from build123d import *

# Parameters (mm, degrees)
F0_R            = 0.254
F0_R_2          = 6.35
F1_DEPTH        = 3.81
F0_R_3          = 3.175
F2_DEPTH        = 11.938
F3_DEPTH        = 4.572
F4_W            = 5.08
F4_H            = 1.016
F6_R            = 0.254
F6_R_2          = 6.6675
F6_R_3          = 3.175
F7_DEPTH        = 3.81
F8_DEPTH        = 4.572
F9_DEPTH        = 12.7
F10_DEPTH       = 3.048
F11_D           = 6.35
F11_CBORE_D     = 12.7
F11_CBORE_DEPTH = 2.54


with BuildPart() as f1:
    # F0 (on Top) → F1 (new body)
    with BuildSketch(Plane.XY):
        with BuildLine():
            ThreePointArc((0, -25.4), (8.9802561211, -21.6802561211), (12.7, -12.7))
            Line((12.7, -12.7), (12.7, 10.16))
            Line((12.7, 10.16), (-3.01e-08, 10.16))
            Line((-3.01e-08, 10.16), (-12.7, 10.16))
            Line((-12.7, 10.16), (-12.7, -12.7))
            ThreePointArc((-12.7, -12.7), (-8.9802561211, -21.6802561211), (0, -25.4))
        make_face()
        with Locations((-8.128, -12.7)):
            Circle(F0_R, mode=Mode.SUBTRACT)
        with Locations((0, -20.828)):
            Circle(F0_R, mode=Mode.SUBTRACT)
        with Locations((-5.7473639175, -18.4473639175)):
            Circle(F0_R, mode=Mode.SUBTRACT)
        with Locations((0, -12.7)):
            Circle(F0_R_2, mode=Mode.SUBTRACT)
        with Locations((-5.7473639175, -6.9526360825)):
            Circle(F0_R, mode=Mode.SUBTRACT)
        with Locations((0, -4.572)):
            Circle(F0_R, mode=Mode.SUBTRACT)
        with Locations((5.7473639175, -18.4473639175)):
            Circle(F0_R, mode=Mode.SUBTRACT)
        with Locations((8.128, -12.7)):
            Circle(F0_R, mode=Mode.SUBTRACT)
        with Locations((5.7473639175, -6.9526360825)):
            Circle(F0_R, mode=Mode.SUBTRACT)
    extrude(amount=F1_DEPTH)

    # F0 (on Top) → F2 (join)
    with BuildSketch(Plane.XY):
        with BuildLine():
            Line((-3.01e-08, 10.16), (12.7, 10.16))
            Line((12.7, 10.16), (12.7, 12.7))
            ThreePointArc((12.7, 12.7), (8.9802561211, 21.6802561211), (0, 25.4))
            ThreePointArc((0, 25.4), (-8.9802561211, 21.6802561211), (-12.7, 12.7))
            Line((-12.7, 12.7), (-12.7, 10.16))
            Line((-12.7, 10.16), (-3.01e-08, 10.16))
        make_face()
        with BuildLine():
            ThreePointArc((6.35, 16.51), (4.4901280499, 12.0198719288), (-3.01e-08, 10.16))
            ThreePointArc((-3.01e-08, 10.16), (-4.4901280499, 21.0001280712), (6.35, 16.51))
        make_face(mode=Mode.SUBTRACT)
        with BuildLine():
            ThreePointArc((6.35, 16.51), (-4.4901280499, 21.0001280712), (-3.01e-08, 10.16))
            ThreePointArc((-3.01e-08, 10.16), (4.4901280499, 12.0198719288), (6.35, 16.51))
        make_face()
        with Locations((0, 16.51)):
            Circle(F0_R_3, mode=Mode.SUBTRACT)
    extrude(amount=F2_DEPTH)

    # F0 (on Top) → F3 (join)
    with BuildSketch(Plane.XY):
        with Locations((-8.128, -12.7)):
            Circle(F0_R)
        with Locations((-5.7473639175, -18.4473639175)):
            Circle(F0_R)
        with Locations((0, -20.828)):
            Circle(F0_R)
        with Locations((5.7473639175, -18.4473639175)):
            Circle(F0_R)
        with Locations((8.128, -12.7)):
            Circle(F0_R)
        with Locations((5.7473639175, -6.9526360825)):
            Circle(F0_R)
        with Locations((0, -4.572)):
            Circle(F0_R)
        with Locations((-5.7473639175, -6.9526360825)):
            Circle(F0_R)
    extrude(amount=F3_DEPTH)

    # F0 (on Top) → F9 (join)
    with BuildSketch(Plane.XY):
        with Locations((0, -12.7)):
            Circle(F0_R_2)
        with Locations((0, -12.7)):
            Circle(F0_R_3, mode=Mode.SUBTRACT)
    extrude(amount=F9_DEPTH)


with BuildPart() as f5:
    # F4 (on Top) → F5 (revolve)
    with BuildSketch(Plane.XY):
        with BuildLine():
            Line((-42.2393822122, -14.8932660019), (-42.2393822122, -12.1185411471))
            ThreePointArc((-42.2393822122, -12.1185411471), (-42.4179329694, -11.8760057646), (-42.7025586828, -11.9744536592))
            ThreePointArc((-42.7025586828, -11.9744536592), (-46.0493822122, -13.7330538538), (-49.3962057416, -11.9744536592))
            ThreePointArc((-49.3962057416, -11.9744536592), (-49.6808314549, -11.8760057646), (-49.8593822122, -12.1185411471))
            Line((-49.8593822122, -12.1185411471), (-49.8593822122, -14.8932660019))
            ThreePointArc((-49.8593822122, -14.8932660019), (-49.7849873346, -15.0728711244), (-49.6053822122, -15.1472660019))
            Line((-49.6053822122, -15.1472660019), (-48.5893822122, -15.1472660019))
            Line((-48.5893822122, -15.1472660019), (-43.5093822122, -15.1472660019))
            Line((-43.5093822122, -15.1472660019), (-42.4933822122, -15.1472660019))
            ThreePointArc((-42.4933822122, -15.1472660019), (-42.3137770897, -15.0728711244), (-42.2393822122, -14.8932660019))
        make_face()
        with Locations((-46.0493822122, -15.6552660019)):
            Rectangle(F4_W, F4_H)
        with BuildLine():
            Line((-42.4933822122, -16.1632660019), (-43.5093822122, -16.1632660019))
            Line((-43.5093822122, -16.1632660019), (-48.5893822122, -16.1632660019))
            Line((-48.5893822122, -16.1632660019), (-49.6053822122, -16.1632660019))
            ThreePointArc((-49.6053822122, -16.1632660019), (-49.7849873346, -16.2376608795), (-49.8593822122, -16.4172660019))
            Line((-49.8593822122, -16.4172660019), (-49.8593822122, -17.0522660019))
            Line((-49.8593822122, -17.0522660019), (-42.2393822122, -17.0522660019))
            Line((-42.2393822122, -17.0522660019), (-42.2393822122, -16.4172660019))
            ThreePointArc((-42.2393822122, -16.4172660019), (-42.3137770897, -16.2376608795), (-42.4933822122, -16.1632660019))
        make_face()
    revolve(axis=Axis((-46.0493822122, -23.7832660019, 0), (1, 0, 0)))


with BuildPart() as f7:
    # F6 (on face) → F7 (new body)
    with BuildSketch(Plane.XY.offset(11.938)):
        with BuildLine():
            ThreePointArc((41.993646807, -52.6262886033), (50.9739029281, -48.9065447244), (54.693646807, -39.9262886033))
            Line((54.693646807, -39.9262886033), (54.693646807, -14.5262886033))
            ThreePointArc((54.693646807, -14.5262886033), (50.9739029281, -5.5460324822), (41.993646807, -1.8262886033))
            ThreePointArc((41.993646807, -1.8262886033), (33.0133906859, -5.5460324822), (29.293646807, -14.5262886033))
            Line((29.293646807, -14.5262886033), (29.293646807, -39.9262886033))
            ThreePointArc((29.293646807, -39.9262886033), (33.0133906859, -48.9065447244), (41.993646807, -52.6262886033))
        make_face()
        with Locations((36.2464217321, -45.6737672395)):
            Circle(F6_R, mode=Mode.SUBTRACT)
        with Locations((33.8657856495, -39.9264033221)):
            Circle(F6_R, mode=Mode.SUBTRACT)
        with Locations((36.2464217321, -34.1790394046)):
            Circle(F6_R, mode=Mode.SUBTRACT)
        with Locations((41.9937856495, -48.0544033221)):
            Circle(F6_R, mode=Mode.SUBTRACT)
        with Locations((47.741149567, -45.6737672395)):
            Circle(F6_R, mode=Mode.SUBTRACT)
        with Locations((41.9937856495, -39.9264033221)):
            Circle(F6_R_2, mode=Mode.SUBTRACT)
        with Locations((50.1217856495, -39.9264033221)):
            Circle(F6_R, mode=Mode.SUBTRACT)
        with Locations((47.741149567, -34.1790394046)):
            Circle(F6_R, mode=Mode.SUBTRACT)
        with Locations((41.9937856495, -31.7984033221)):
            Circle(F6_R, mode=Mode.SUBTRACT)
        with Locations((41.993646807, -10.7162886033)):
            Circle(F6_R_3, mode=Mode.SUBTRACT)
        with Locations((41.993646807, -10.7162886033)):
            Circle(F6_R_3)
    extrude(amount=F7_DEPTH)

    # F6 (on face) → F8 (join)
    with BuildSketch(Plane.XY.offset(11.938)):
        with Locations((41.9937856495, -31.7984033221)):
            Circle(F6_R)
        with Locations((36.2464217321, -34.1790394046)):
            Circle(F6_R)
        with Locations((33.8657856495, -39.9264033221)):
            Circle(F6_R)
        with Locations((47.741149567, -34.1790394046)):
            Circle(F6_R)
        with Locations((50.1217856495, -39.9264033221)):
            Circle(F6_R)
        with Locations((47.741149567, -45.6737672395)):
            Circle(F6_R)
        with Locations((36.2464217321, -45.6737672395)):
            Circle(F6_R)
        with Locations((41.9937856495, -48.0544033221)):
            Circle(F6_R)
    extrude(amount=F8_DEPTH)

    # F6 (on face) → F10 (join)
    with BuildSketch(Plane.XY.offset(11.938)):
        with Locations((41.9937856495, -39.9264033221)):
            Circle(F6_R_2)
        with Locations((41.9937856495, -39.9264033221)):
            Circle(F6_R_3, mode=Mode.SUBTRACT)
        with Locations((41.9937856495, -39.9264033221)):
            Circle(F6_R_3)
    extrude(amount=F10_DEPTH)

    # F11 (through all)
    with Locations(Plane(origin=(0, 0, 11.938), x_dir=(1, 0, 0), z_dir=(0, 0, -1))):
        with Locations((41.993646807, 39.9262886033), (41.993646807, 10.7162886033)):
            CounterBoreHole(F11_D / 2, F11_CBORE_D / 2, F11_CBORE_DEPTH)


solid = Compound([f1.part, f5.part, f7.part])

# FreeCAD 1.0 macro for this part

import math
import FreeCAD as App
import Part
import Sketcher
from FreeCAD import Vector
Q = App.Units.Quantity

doc = App.newDocument("Part")
params = doc.addObject("Spreadsheet::Sheet", "Params")
for row, (alias, value) in enumerate([
    ("sketch1_diameter", "0.5 in"),
    ("sketch1_radius", "0.5 in"),
    ("sketch1_diameter2", "0.02 in"),
    ("sketch1_height", "0.9 in"),
    ("pad1_length", "0.15 in"),
    ("sketch2_radius", "0.5 in"),
    ("sketch2_diameter", "0.25 in"),
    ("sketch2_height", "0.1 in"),
    ("pad2_length", "0.47 in"),
    ("sketch3_diameter", "0.02 in"),
    ("pad3_length", "0.18 in"),
    ("sketch4_diameter", "0.5 in"),
    ("sketch4_diameter2", "0.25 in"),
    ("pad4_length", "0.5 in"),
    ("sketch5_radius", "0.01 in"),
    ("sketch5_radius2", "0.16 in"),
    ("sketch5_width", "0.3 in"),
    ("sketch5_width2", "0.04 in"),
    ("sketch5_height", "0.025 in"),
    ("revolution_angle", "360 deg"),
    ("sketch6_radius", "0.5 in"),
    ("sketch6_diameter", "0.02 in"),
    ("sketch6_height", "1 in"),
    ("sketch6_diameter2", "0.525 in"),
    ("pad5_length", "0.15 in"),
    ("sketch7_diameter", "0.02 in"),
    ("pad6_length", "0.18 in"),
    ("sketch8_diameter", "0.525 in"),
    ("pad7_length", "0.12 in"),
    ("sketch9_diameter", "0.25 in"),
    ("hole_diameter", "0.25 in"),
    ("hole_cbore_diameter", "0.5 in"),
    ("hole_cbore_depth", "0.1 in"),
], start=1):
    params.set(f"A{row}", alias)
    params.set(f"B{row}", "=" + value)
    params.setAlias(f"B{row}", alias)

body = doc.addObject("PartDesign::Body", "Body")

# Sketch on XY plane
sketch1 = body.newObject("Sketcher::SketchObject", "Sketch")
sketch1.AttachmentSupport = (doc.getObject("XY_Plane"), [""])
sketch1.MapMode = "FlatFace"
sketch1.addGeometry([
    Part.ArcOfCircle(Part.Circle(Vector(0, -12.7, 0), Vector(0, 0, 1), 12.7), math.radians(-90), math.radians(0)),  # 0
    Part.LineSegment(Vector(12.7, -12.7, 0), Vector(12.7, 10.16, 0)),  # 1
    Part.LineSegment(Vector(12.7, 10.16, 0), Vector(-12.7, 10.16, 0)),  # 2
    Part.LineSegment(Vector(-12.7, 10.16, 0), Vector(-12.7, -12.7, 0)),  # 3
    Part.ArcOfCircle(Part.Circle(Vector(0, -12.7, 0), Vector(0, 0, 1), 12.7), math.radians(180), math.radians(270)),  # 4
    Part.Circle(Vector(-5.75, -18.45, 0), Vector(0, 0, 1), 0.25),  # 5
    Part.Circle(Vector(0, -20.83, 0), Vector(0, 0, 1), 0.25),  # 6
    Part.Circle(Vector(5.75, -18.45, 0), Vector(0, 0, 1), 0.25),  # 7
    Part.Circle(Vector(-8.13, -12.7, 0), Vector(0, 0, 1), 0.25),  # 8
    Part.Circle(Vector(-5.75, -6.95, 0), Vector(0, 0, 1), 0.25),  # 9
    Part.Circle(Vector(0, -12.7, 0), Vector(0, 0, 1), 6.35),  # 10
    Part.Circle(Vector(8.13, -12.7, 0), Vector(0, 0, 1), 0.25),  # 11
    Part.Circle(Vector(0, -4.57, 0), Vector(0, 0, 1), 0.25),  # 12
    Part.Circle(Vector(5.75, -6.95, 0), Vector(0, 0, 1), 0.25),  # 13
], False)
sketch1.addConstraint([
    Sketcher.Constraint("Tangent", 0, 2, 1, 1),
    Sketcher.Constraint("Coincident", 1, 2, 2, 1),
    Sketcher.Constraint("Coincident", 2, 2, 3, 1),
    Sketcher.Constraint("Tangent", 3, 2, 4, 1),
    Sketcher.Constraint("Tangent", 4, 2, 0, 1),
    Sketcher.Constraint("Vertical", 1),
    Sketcher.Constraint("Horizontal", 2),
    Sketcher.Constraint("Vertical", 3),
    Sketcher.Constraint("Coincident", 10, 3, 0, 3),
    Sketcher.Constraint("Equal", 0, 4),
    Sketcher.Constraint("Equal", 5, 6),
    Sketcher.Constraint("Equal", 6, 7),
    Sketcher.Constraint("Equal", 7, 8),
    Sketcher.Constraint("Equal", 8, 9),
    Sketcher.Constraint("Equal", 9, 11),
    Sketcher.Constraint("Equal", 11, 12),
    Sketcher.Constraint("Equal", 12, 13),
    Sketcher.Constraint("Symmetric", 5, 3, 7, 3, -2),
    Sketcher.Constraint("Symmetric", 8, 3, 11, 3, -2),
    Sketcher.Constraint("Symmetric", 9, 3, 13, 3, -2),
    Sketcher.Constraint("PointOnObject", 0, 3, -2),
    Sketcher.Constraint("PointOnObject", 6, 3, -2),
    Sketcher.Constraint("PointOnObject", 12, 3, -2),
    Sketcher.Constraint("PointOnObject", 4, 2, -2),
    Sketcher.Constraint("Horizontal", 4, 3, 8, 3),
    Sketcher.Constraint("Vertical", 5, 3, 9, 3),
    Sketcher.Constraint("Diameter", 10, Q("0.5 in")),
    Sketcher.Constraint("Radius", 0, Q("0.5 in")),
    Sketcher.Constraint("Diameter", 5, Q("0.02 in")),
    Sketcher.Constraint("DistanceY", 1, 1, 1, 2, Q("0.9 in")),
    Sketcher.Constraint("DistanceY", 4, 2, -1, 1, Q("1 in")),
    Sketcher.Constraint("DistanceY", 6, 3, -1, 1, Q("0.82 in")),
    Sketcher.Constraint("DistanceX", 8, 3, -1, 1, Q("0.32 in")),
    Sketcher.Constraint("DistanceY", 12, 3, -1, 1, Q("0.18 in")),
    Sketcher.Constraint("DistanceX", 5, 3, -1, 1, Q("5.747364 mm")),
    Sketcher.Constraint("DistanceY", 5, 3, -1, 1, Q("18.447364 mm")),
    Sketcher.Constraint("DistanceY", 9, 3, -1, 1, Q("6.952636 mm")),
])
sketch1.setExpression("Constraints[26]", "Params.sketch1_diameter")
sketch1.setExpression("Constraints[27]", "Params.sketch1_radius")
sketch1.setExpression("Constraints[28]", "Params.sketch1_diameter2")
sketch1.setExpression("Constraints[29]", "Params.sketch1_height")
pad1 = body.newObject("PartDesign::Pad", "Pad")
pad1.Profile = sketch1
pad1.setExpression("Length", "Params.pad1_length")

# Sketch on XY plane
sketch2 = body.newObject("Sketcher::SketchObject", "Sketch001")
sketch2.AttachmentSupport = (doc.getObject("XY_Plane"), [""])
sketch2.MapMode = "FlatFace"
sketch2.addGeometry([
    Part.LineSegment(Vector(-12.7, 10.2, 0), Vector(12.7, 10.2, 0)),  # 0
    Part.LineSegment(Vector(12.7, 10.2, 0), Vector(12.7, 12.7, 0)),  # 1
    Part.ArcOfCircle(Part.Circle(Vector(0, 12.7, 0), Vector(0, 0, 1), 12.7), math.radians(0), math.radians(90)),  # 2
    Part.ArcOfCircle(Part.Circle(Vector(0, 12.7, 0), Vector(0, 0, 1), 12.7), math.radians(90), math.radians(180)),  # 3
    Part.LineSegment(Vector(-12.7, 12.7, 0), Vector(-12.7, 10.2, 0)),  # 4
    Part.Circle(Vector(0, 16.5, 0), Vector(0, 0, 1), 3.2),  # 5
], False)
sketch2.addConstraint([
    Sketcher.Constraint("Coincident", 0, 2, 1, 1),
    Sketcher.Constraint("Tangent", 1, 2, 2, 1),
    Sketcher.Constraint("Tangent", 2, 2, 3, 1),
    Sketcher.Constraint("Tangent", 3, 2, 4, 1),
    Sketcher.Constraint("Coincident", 4, 2, 0, 1),
    Sketcher.Constraint("Horizontal", 0),
    Sketcher.Constraint("Vertical", 1),
    Sketcher.Constraint("Vertical", 4),
    Sketcher.Constraint("Equal", 2, 3),
    Sketcher.Constraint("PointOnObject", 2, 3, -2),
    Sketcher.Constraint("PointOnObject", 5, 3, -2),
    Sketcher.Constraint("PointOnObject", 2, 2, -2),
    Sketcher.Constraint("Radius", 2, Q("0.5 in")),
    Sketcher.Constraint("Diameter", 5, Q("0.25 in")),
    Sketcher.Constraint("DistanceY", 1, 1, 1, 2, Q("0.1 in")),
    Sketcher.Constraint("DistanceY", -1, 1, 2, 2, Q("1 in")),
    Sketcher.Constraint("DistanceY", -1, 1, 5, 3, Q("0.65 in")),
])
sketch2.setExpression("Constraints[12]", "Params.sketch2_radius")
sketch2.setExpression("Constraints[13]", "Params.sketch2_diameter")
sketch2.setExpression("Constraints[14]", "Params.sketch2_height")
pad2 = body.newObject("PartDesign::Pad", "Pad001")
pad2.Profile = sketch2
pad2.setExpression("Length", "Params.pad2_length")

# Sketch on XY plane
sketch3 = body.newObject("Sketcher::SketchObject", "Sketch002")
sketch3.AttachmentSupport = (doc.getObject("XY_Plane"), [""])
sketch3.MapMode = "FlatFace"
sketch3.addGeometry([
    Part.Circle(Vector(-8.13, -12.7, 0), Vector(0, 0, 1), 0.25),  # 0
    Part.Circle(Vector(-5.75, -18.45, 0), Vector(0, 0, 1), 0.25),  # 1
    Part.Circle(Vector(0, -20.83, 0), Vector(0, 0, 1), 0.25),  # 2
    Part.Circle(Vector(5.75, -18.45, 0), Vector(0, 0, 1), 0.25),  # 3
    Part.Circle(Vector(8.13, -12.7, 0), Vector(0, 0, 1), 0.25),  # 4
    Part.Circle(Vector(5.75, -6.95, 0), Vector(0, 0, 1), 0.25),  # 5
    Part.Circle(Vector(0, -4.57, 0), Vector(0, 0, 1), 0.25),  # 6
    Part.Circle(Vector(-5.75, -6.95, 0), Vector(0, 0, 1), 0.25),  # 7
], False)
sketch3.addConstraint([
    Sketcher.Constraint("Equal", 0, 1),
    Sketcher.Constraint("Equal", 1, 2),
    Sketcher.Constraint("Equal", 2, 3),
    Sketcher.Constraint("Equal", 3, 4),
    Sketcher.Constraint("Equal", 4, 5),
    Sketcher.Constraint("Equal", 5, 6),
    Sketcher.Constraint("Equal", 6, 7),
    Sketcher.Constraint("Symmetric", 1, 3, 3, 3, -2),
    Sketcher.Constraint("Symmetric", 0, 3, 4, 3, -2),
    Sketcher.Constraint("Symmetric", 5, 3, 7, 3, -2),
    Sketcher.Constraint("PointOnObject", 2, 3, -2),
    Sketcher.Constraint("PointOnObject", 6, 3, -2),
    Sketcher.Constraint("Vertical", 3, 3, 5, 3),
    Sketcher.Constraint("Diameter", 0, Q("0.02 in")),
    Sketcher.Constraint("DistanceY", 0, 3, -1, 1, Q("0.5 in")),
    Sketcher.Constraint("DistanceX", 0, 3, -1, 1, Q("0.32 in")),
    Sketcher.Constraint("DistanceY", 2, 3, -1, 1, Q("0.82 in")),
    Sketcher.Constraint("DistanceY", 6, 3, -1, 1, Q("0.18 in")),
    Sketcher.Constraint("DistanceX", 1, 3, -1, 1, Q("5.747364 mm")),
    Sketcher.Constraint("DistanceY", 1, 3, -1, 1, Q("18.447364 mm")),
    Sketcher.Constraint("DistanceY", 5, 3, -1, 1, Q("6.952636 mm")),
])
sketch3.setExpression("Constraints[13]", "Params.sketch3_diameter")
pad3 = body.newObject("PartDesign::Pad", "Pad002")
pad3.Profile = sketch3
pad3.setExpression("Length", "Params.pad3_length")

# Sketch on XY plane
sketch4 = body.newObject("Sketcher::SketchObject", "Sketch003")
sketch4.AttachmentSupport = (doc.getObject("XY_Plane"), [""])
sketch4.MapMode = "FlatFace"
sketch4.addGeometry([
    Part.Circle(Vector(0, -12.7, 0), Vector(0, 0, 1), 6.3),
    Part.Circle(Vector(0, -12.7, 0), Vector(0, 0, 1), 3.2),
], False)
sketch4.addConstraint([
    Sketcher.Constraint("Coincident", 1, 3, 0, 3),
    Sketcher.Constraint("PointOnObject", 0, 3, -2),
    Sketcher.Constraint("Diameter", 0, Q("0.5 in")),
    Sketcher.Constraint("Diameter", 1, Q("0.25 in")),
    Sketcher.Constraint("DistanceY", 0, 3, -1, 1, Q("0.5 in")),
])
sketch4.setExpression("Constraints[2]", "Params.sketch4_diameter")
sketch4.setExpression("Constraints[3]", "Params.sketch4_diameter2")
pad4 = body.newObject("PartDesign::Pad", "Pad003")
pad4.Profile = sketch4
pad4.setExpression("Length", "Params.pad4_length")
body2 = doc.addObject("PartDesign::Body", "Body001")

# Sketch on XY plane
sketch5 = body2.newObject("Sketcher::SketchObject", "Sketch004")
sketch5.AttachmentSupport = (doc.getObject("XY_Plane001"), [""])
sketch5.MapMode = "FlatFace"
sketch5.addGeometry([
    Part.LineSegment(Vector(-42.24, -14.89, 0), Vector(-42.24, -12.12, 0)),  # 0
    Part.ArcOfCircle(Part.Circle(Vector(-42.49, -12.12, 0), Vector(0, 0, 1), 0.25), math.radians(0), math.radians(145)),  # 1
    Part.ArcOfCircle(Part.Circle(Vector(-46.05, -9.67, 0), Vector(0, 0, 1), 4.06), math.radians(-145), math.radians(-35)),  # 2
    Part.ArcOfCircle(Part.Circle(Vector(-49.61, -12.12, 0), Vector(0, 0, 1), 0.25), math.radians(35), math.radians(180)),  # 3
    Part.LineSegment(Vector(-49.86, -12.12, 0), Vector(-49.86, -14.89, 0)),  # 4
    Part.ArcOfCircle(Part.Circle(Vector(-49.61, -14.89, 0), Vector(0, 0, 1), 0.25), math.radians(180), math.radians(270)),  # 5
    Part.LineSegment(Vector(-49.61, -15.15, 0), Vector(-48.59, -15.15, 0)),  # 6
    Part.LineSegment(Vector(-48.59, -15.15, 0), Vector(-48.59, -16.16, 0)),  # 7
    Part.LineSegment(Vector(-48.59, -16.16, 0), Vector(-49.61, -16.16, 0)),  # 8
    Part.ArcOfCircle(Part.Circle(Vector(-49.61, -16.42, 0), Vector(0, 0, 1), 0.25), math.radians(90), math.radians(180)),  # 9
    Part.LineSegment(Vector(-49.86, -16.42, 0), Vector(-49.86, -17.05, 0)),  # 10
    Part.LineSegment(Vector(-49.86, -17.05, 0), Vector(-42.24, -17.05, 0)),  # 11
    Part.LineSegment(Vector(-42.24, -17.05, 0), Vector(-42.24, -16.42, 0)),  # 12
    Part.ArcOfCircle(Part.Circle(Vector(-42.49, -16.42, 0), Vector(0, 0, 1), 0.25), math.radians(0), math.radians(90)),  # 13
    Part.LineSegment(Vector(-42.49, -16.16, 0), Vector(-43.51, -16.16, 0)),  # 14
    Part.LineSegment(Vector(-43.51, -16.16, 0), Vector(-43.51, -15.15, 0)),  # 15
    Part.LineSegment(Vector(-43.51, -15.15, 0), Vector(-42.49, -15.15, 0)),  # 16
    Part.ArcOfCircle(Part.Circle(Vector(-42.49, -14.89, 0), Vector(0, 0, 1), 0.25), math.radians(-90), math.radians(0)),  # 17
], False)
sketch5.addGeometry(Part.LineSegment(Vector(-49.86, -23.78, 0), Vector(-42.24, -23.78, 0)), True)  # axis
sketch5.addConstraint([
    Sketcher.Constraint("Tangent", 0, 2, 1, 1),
    Sketcher.Constraint("Tangent", 1, 2, 2, 2),
    Sketcher.Constraint("Tangent", 2, 1, 3, 1),
    Sketcher.Constraint("Tangent", 3, 2, 4, 1),
    Sketcher.Constraint("Tangent", 4, 2, 5, 1),
    Sketcher.Constraint("Tangent", 5, 2, 6, 1),
    Sketcher.Constraint("Coincident", 6, 2, 7, 1),
    Sketcher.Constraint("Coincident", 7, 2, 8, 1),
    Sketcher.Constraint("Tangent", 8, 2, 9, 1),
    Sketcher.Constraint("Tangent", 9, 2, 10, 1),
    Sketcher.Constraint("Coincident", 10, 2, 11, 1),
    Sketcher.Constraint("Coincident", 11, 2, 12, 1),
    Sketcher.Constraint("Tangent", 12, 2, 13, 1),
    Sketcher.Constraint("Tangent", 13, 2, 14, 1),
    Sketcher.Constraint("Coincident", 14, 2, 15, 1),
    Sketcher.Constraint("Coincident", 15, 2, 16, 1),
    Sketcher.Constraint("Tangent", 16, 2, 17, 1),
    Sketcher.Constraint("Tangent", 17, 2, 0, 1),
    Sketcher.Constraint("Vertical", 0),
    Sketcher.Constraint("Vertical", 4),
    Sketcher.Constraint("Horizontal", 6),
    Sketcher.Constraint("Vertical", 7),
    Sketcher.Constraint("Horizontal", 8),
    Sketcher.Constraint("Vertical", 10),
    Sketcher.Constraint("Horizontal", 11),
    Sketcher.Constraint("Vertical", 12),
    Sketcher.Constraint("Horizontal", 14),
    Sketcher.Constraint("Vertical", 15),
    Sketcher.Constraint("Horizontal", 16),
    Sketcher.Constraint("Horizontal", 18),
    Sketcher.Constraint("Equal", 1, 3),
    Sketcher.Constraint("Equal", 3, 5),
    Sketcher.Constraint("Equal", 5, 9),
    Sketcher.Constraint("Equal", 9, 13),
    Sketcher.Constraint("Equal", 13, 17),
    Sketcher.Constraint("Horizontal", 1, 3, 3, 3),
    Sketcher.Constraint("Horizontal", 9, 3, 13, 3),
    Sketcher.Constraint("Horizontal", 5, 3, 17, 3),
    Sketcher.Constraint("Vertical", 5, 3, 9, 3),
    Sketcher.Constraint("Vertical", 1, 3, 13, 3),
    Sketcher.Constraint("Vertical", 10, 2, 18, 1),
    Sketcher.Constraint("Vertical", 17, 2, 18, 2),
    Sketcher.Constraint("Equal", 8, 14),
    Sketcher.Constraint("Equal", 16, 7),
    Sketcher.Constraint("Radius", 1, Q("0.01 in")),
    Sketcher.Constraint("Radius", 2, Q("0.16 in")),
    Sketcher.Constraint("DistanceX", 11, 1, 11, 2, Q("0.3 in")),
    Sketcher.Constraint("DistanceX", 6, 1, 6, 2, Q("0.04 in")),
    Sketcher.Constraint("DistanceY", 18, 1, 8, 2, Q("0.3 in")),
    Sketcher.Constraint("DistanceY", 10, 2, 10, 1, Q("0.025 in")),
    Sketcher.Constraint("DistanceY", 0, 1, 0, 2, Q("2.774725 mm")),
    Sketcher.Constraint("DistanceY", 1, 3, -1, 1, Q("12.118541 mm")),
    Sketcher.Constraint("DistanceX", 1, 2, -1, 1, Q("42.702559 mm")),
])
sketch5.setExpression("Constraints[44]", "Params.sketch5_radius")
sketch5.setExpression("Constraints[45]", "Params.sketch5_radius2")
sketch5.setExpression("Constraints[46]", "Params.sketch5_width")
sketch5.setExpression("Constraints[47]", "Params.sketch5_width2")
sketch5.setExpression("Constraints[49]", "Params.sketch5_height")
revolution = body2.newObject("PartDesign::Revolution", "Revolution")
revolution.Profile = sketch5
revolution.ReferenceAxis = (sketch5, ["Axis0"])
revolution.setExpression("Angle", "Params.revolution_angle")
body3 = doc.addObject("PartDesign::Body", "Body002")

# Sketch on XY plane
sketch6 = body3.newObject("Sketcher::SketchObject", "Sketch005")
sketch6.AttachmentSupport = (doc.getObject("XY_Plane002"), [""])
sketch6.MapMode = "FlatFace"
sketch6.AttachmentOffset = App.Placement(Vector(0, 0, 0.47 * 25.4), App.Rotation())
sketch6.addGeometry([
    Part.ArcOfCircle(Part.Circle(Vector(41.99, -39.93, 0), Vector(0, 0, 1), 12.7), math.radians(-90), math.radians(0)),  # 0
    Part.LineSegment(Vector(54.69, -39.93, 0), Vector(54.69, -14.53, 0)),  # 1
    Part.ArcOfCircle(Part.Circle(Vector(41.99, -14.53, 0), Vector(0, 0, 1), 12.7), math.radians(0), math.radians(90)),  # 2
    Part.ArcOfCircle(Part.Circle(Vector(41.99, -14.53, 0), Vector(0, 0, 1), 12.7), math.radians(90), math.radians(180)),  # 3
    Part.LineSegment(Vector(29.29, -14.53, 0), Vector(29.29, -39.93, 0)),  # 4
    Part.ArcOfCircle(Part.Circle(Vector(41.99, -39.93, 0), Vector(0, 0, 1), 12.7), math.radians(180), math.radians(270)),  # 5
    Part.Circle(Vector(36.25, -45.67, 0), Vector(0, 0, 1), 0.25),  # 6
    Part.Circle(Vector(33.87, -39.93, 0), Vector(0, 0, 1), 0.25),  # 7
    Part.Circle(Vector(36.25, -34.18, 0), Vector(0, 0, 1), 0.25),  # 8
    Part.Circle(Vector(41.99, -48.05, 0), Vector(0, 0, 1), 0.25),  # 9
    Part.Circle(Vector(41.99, -39.93, 0), Vector(0, 0, 1), 6.67),  # 10
    Part.Circle(Vector(47.74, -45.67, 0), Vector(0, 0, 1), 0.25),  # 11
    Part.Circle(Vector(50.12, -39.93, 0), Vector(0, 0, 1), 0.25),  # 12
    Part.Circle(Vector(41.99, -31.8, 0), Vector(0, 0, 1), 0.25),  # 13
    Part.Circle(Vector(47.74, -34.18, 0), Vector(0, 0, 1), 0.25),  # 14
], False)
sketch6.addConstraint([
    Sketcher.Constraint("Tangent", 0, 2, 1, 1),
    Sketcher.Constraint("Tangent", 1, 2, 2, 1),
    Sketcher.Constraint("Tangent", 2, 2, 3, 1),
    Sketcher.Constraint("Tangent", 3, 2, 4, 1),
    Sketcher.Constraint("Tangent", 4, 2, 5, 1),
    Sketcher.Constraint("Tangent", 5, 2, 0, 1),
    Sketcher.Constraint("Vertical", 1),
    Sketcher.Constraint("Vertical", 4),
    Sketcher.Constraint("Equal", 0, 2),
    Sketcher.Constraint("Equal", 2, 3),
    Sketcher.Constraint("Equal", 6, 7),
    Sketcher.Constraint("Equal", 7, 8),
    Sketcher.Constraint("Equal", 8, 9),
    Sketcher.Constraint("Equal", 9, 11),
    Sketcher.Constraint("Equal", 11, 12),
    Sketcher.Constraint("Equal", 12, 13),
    Sketcher.Constraint("Equal", 13, 14),
    Sketcher.Constraint("Horizontal", 7, 3, 10, 3),
    Sketcher.Constraint("Horizontal", 6, 3, 11, 3),
    Sketcher.Constraint("Horizontal", 10, 3, 12, 3),
    Sketcher.Constraint("Horizontal", 8, 3, 14, 3),
    Sketcher.Constraint("Vertical", 6, 3, 8, 3),
    Sketcher.Constraint("Vertical", 9, 3, 10, 3),
    Sketcher.Constraint("Vertical", 10, 3, 13, 3),
    Sketcher.Constraint("Vertical", 11, 3, 14, 3),
    Sketcher.Constraint("Vertical", 5, 3, 2, 2),
    Sketcher.Constraint("Vertical", 2, 2, 5, 2),
    Sketcher.Constraint("Radius", 0, Q("0.5 in")),
    Sketcher.Constraint("Diameter", 6, Q("0.02 in")),
    Sketcher.Constraint("DistanceY", 1, 1, 1, 2, Q("1 in")),
    Sketcher.Constraint("Diameter", 10, Q("0.525 in")),
    Sketcher.Constraint("DistanceX", 7, 3, 9, 3, Q("0.32 in")),
    Sketcher.Constraint("DistanceY", 9, 3, 7, 3, Q("0.32 in")),
    Sketcher.Constraint("DistanceX", 10, 3, 12, 3, Q("0.32 in")),
    Sketcher.Constraint("DistanceY", 10, 3, 13, 3, Q("0.32 in")),
    Sketcher.Constraint("DistanceY", 0, 3, -1, 1, Q("39.926289 mm")),
    Sketcher.Constraint("DistanceX", -1, 1, 6, 3, Q("36.246422 mm")),
    Sketcher.Constraint("DistanceY", 8, 3, -1, 1, Q("34.179039 mm")),
    Sketcher.Constraint("DistanceX", -1, 1, 11, 3, Q("47.74115 mm")),
    Sketcher.Constraint("DistanceY", 6, 3, 0, 3, Q("5.747479 mm")),
    Sketcher.Constraint("DistanceX", 7, 3, 0, 3, Q("8.127861 mm")),
    Sketcher.Constraint("DistanceX", -1, 1, 0, 3, Q("41.993647 mm")),
    Sketcher.Constraint("DistanceY", 7, 3, -1, 1, Q("39.926403 mm")),
])
sketch6.setExpression("Constraints[27]", "Params.sketch6_radius")
sketch6.setExpression("Constraints[28]", "Params.sketch6_diameter")
sketch6.setExpression("Constraints[29]", "Params.sketch6_height")
sketch6.setExpression("Constraints[30]", "Params.sketch6_diameter2")
pad5 = body3.newObject("PartDesign::Pad", "Pad004")
pad5.Profile = sketch6
pad5.setExpression("Length", "Params.pad5_length")

# Sketch on XY plane
sketch7 = body3.newObject("Sketcher::SketchObject", "Sketch006")
sketch7.AttachmentSupport = (doc.getObject("XY_Plane002"), [""])
sketch7.MapMode = "FlatFace"
sketch7.AttachmentOffset = App.Placement(Vector(0, 0, 0.47 * 25.4), App.Rotation())
sketch7.addGeometry([
    Part.Circle(Vector(41.99, -31.8, 0), Vector(0, 0, 1), 0.25),  # 0
    Part.Circle(Vector(36.25, -34.18, 0), Vector(0, 0, 1), 0.25),  # 1
    Part.Circle(Vector(33.87, -39.93, 0), Vector(0, 0, 1), 0.25),  # 2
    Part.Circle(Vector(47.74, -34.18, 0), Vector(0, 0, 1), 0.25),  # 3
    Part.Circle(Vector(50.12, -39.93, 0), Vector(0, 0, 1), 0.25),  # 4
    Part.Circle(Vector(47.74, -45.67, 0), Vector(0, 0, 1), 0.25),  # 5
    Part.Circle(Vector(36.25, -45.67, 0), Vector(0, 0, 1), 0.25),  # 6
    Part.Circle(Vector(41.99, -48.05, 0), Vector(0, 0, 1), 0.25),  # 7
], False)
sketch7.addConstraint([
    Sketcher.Constraint("Equal", 0, 1),
    Sketcher.Constraint("Equal", 1, 2),
    Sketcher.Constraint("Equal", 2, 3),
    Sketcher.Constraint("Equal", 3, 4),
    Sketcher.Constraint("Equal", 4, 5),
    Sketcher.Constraint("Equal", 5, 6),
    Sketcher.Constraint("Equal", 6, 7),
    Sketcher.Constraint("Horizontal", 1, 3, 3, 3),
    Sketcher.Constraint("Horizontal", 2, 3, 4, 3),
    Sketcher.Constraint("Horizontal", 5, 3, 6, 3),
    Sketcher.Constraint("Vertical", 3, 3, 5, 3),
    Sketcher.Constraint("Vertical", 1, 3, 6, 3),
    Sketcher.Constraint("Vertical", 0, 3, 7, 3),
    Sketcher.Constraint("Diameter", 0, Q("0.02 in")),
    Sketcher.Constraint("DistanceX", 2, 3, 0, 3, Q("0.32 in")),
    Sketcher.Constraint("DistanceY", 2, 3, 0, 3, Q("0.32 in")),
    Sketcher.Constraint("DistanceX", 0, 3, 4, 3, Q("0.32 in")),
    Sketcher.Constraint("DistanceY", 7, 3, 2, 3, Q("0.32 in")),
    Sketcher.Constraint("DistanceX", -1, 1, 1, 3, Q("36.246422 mm")),
    Sketcher.Constraint("DistanceY", 1, 3, -1, 1, Q("34.179039 mm")),
    Sketcher.Constraint("DistanceX", -1, 1, 3, 3, Q("47.74115 mm")),
    Sketcher.Constraint("DistanceX", -1, 1, 0, 3, Q("41.993786 mm")),
    Sketcher.Constraint("DistanceY", 0, 3, -1, 1, Q("31.798403 mm")),
    Sketcher.Constraint("DistanceY", 5, 3, -1, 1, Q("45.673767 mm")),
])
sketch7.setExpression("Constraints[13]", "Params.sketch7_diameter")
pad6 = body3.newObject("PartDesign::Pad", "Pad005")
pad6.Profile = sketch7
pad6.setExpression("Length", "Params.pad6_length")

# Sketch on XY plane
sketch8 = body3.newObject("Sketcher::SketchObject", "Sketch007")
sketch8.AttachmentSupport = (doc.getObject("XY_Plane002"), [""])
sketch8.MapMode = "FlatFace"
sketch8.AttachmentOffset = App.Placement(Vector(0, 0, 0.47 * 25.4), App.Rotation())
sketch8.addGeometry(Part.Circle(Vector(42, -40, 0), Vector(0, 0, 1), 7), False)
sketch8.addConstraint([
    Sketcher.Constraint("Diameter", 0, Q("0.525 in")),
    Sketcher.Constraint("DistanceX", -1, 1, 0, 3, Q("41.993786 mm")),
    Sketcher.Constraint("DistanceY", 0, 3, -1, 1, Q("39.926403 mm")),
])
sketch8.setExpression("Constraints[0]", "Params.sketch8_diameter")
pad7 = body3.newObject("PartDesign::Pad", "Pad006")
pad7.Profile = sketch8
pad7.setExpression("Length", "Params.pad7_length")

# Sketch on XY plane
sketch9 = body3.newObject("Sketcher::SketchObject", "Sketch008")
sketch9.AttachmentSupport = (doc.getObject("XY_Plane002"), [""])
sketch9.MapMode = "FlatFace"
sketch9.AttachmentOffset = App.Placement(Vector(0, 0, 0.47 * 25.4), App.Rotation())
sketch9.addGeometry([
    Part.Circle(Vector(42, -39.9, 0), Vector(0, 0, 1), 3.2),
    Part.Circle(Vector(42, -10.7, 0), Vector(0, 0, 1), 3.2),
], False)
sketch9.addConstraint([
    Sketcher.Constraint("Equal", 0, 1),
    Sketcher.Constraint("Vertical", 0, 3, 1, 3),
    Sketcher.Constraint("Diameter", 0, Q("0.25 in")),
    Sketcher.Constraint("DistanceY", 0, 3, 1, 3, Q("1.15 in")),
    Sketcher.Constraint("DistanceY", 0, 3, -1, 1, Q("39.926289 mm")),
    Sketcher.Constraint("DistanceX", -1, 1, 0, 3, Q("41.993647 mm")),
])
sketch9.setExpression("Constraints[2]", "Params.sketch9_diameter")
doc.recompute()
hole = body3.newObject("PartDesign::Hole", "Hole")
hole.Profile = sketch9
hole.ThreadType = "None"
hole.setExpression("Diameter", "Params.hole_diameter")
hole.DepthType = "ThroughAll"
hole.HoleCutType = "Counterbore"
hole.setExpression("HoleCutDiameter", "Params.hole_cbore_diameter")
hole.setExpression("HoleCutDepth", "Params.hole_cbore_depth")
hole.Reversed = True

doc.recompute()
